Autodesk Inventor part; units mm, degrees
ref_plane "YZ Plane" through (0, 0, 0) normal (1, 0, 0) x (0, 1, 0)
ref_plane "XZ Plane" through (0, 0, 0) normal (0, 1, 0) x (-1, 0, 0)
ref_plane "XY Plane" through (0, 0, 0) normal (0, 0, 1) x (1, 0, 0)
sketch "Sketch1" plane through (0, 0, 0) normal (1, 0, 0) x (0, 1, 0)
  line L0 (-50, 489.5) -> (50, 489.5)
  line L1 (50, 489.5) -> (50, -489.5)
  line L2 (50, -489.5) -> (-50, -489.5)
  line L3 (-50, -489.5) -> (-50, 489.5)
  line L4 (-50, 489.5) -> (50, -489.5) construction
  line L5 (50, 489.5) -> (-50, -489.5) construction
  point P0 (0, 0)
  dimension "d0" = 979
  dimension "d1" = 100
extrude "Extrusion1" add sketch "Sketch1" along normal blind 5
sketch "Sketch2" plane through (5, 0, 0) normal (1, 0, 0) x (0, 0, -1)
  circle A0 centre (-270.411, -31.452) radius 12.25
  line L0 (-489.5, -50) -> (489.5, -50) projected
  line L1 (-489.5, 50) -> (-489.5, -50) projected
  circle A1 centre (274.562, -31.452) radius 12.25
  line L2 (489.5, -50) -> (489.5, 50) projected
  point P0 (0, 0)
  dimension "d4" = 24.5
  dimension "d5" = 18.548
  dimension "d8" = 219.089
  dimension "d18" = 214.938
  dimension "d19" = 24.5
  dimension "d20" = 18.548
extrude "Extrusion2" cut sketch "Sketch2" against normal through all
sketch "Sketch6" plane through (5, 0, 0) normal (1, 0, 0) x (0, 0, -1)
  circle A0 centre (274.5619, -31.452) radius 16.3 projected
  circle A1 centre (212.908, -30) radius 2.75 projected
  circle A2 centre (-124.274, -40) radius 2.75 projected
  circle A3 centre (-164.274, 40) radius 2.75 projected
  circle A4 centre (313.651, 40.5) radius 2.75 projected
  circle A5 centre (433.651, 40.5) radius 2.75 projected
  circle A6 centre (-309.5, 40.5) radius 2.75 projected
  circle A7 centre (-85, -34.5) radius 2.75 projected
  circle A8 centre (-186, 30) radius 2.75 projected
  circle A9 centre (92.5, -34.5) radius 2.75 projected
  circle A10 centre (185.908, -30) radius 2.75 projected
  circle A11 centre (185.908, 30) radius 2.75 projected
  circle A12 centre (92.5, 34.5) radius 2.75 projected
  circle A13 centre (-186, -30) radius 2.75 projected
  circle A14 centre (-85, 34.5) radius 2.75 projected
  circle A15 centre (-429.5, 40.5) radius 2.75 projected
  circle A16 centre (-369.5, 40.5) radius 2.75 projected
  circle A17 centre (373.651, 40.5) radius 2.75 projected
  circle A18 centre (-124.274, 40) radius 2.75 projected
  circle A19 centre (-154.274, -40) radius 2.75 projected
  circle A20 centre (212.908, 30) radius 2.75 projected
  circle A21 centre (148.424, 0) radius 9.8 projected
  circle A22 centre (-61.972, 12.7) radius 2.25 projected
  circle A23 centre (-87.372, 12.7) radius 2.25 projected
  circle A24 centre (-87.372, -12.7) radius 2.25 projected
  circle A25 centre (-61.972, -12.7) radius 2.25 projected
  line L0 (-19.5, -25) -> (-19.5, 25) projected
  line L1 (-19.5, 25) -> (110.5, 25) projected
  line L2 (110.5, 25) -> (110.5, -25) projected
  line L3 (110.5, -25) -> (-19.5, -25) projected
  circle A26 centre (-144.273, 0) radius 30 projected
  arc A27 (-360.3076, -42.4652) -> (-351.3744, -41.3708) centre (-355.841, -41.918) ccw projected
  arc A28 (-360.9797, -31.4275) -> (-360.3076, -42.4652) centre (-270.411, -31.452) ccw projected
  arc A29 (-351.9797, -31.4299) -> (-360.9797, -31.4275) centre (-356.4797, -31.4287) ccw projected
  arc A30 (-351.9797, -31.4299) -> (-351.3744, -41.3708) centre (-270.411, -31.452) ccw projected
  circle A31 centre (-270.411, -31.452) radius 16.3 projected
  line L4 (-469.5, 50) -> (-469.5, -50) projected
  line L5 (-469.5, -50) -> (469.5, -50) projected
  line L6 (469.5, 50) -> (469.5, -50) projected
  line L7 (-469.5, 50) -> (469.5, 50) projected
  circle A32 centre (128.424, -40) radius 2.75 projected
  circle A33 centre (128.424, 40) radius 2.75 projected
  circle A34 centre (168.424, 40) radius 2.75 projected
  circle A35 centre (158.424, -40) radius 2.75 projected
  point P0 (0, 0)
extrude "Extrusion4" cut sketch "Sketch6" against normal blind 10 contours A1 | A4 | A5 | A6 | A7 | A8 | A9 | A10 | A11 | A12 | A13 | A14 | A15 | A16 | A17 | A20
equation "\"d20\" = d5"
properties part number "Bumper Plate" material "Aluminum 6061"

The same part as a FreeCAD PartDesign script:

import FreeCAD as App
import Part
import Sketcher
from FreeCAD import Vector


def add_polygon(sketch, points):
    """Adds a closed chain of lines whose ends are joined by coincident constraints."""
    first, n = sketch.GeometryCount, len(points)
    for a, b in zip(points, points[1:] + points[:1]):
        sketch.addGeometry(Part.LineSegment(App.Vector(*a, 0), App.Vector(*b, 0)), False)
    for i in range(n):
        sketch.addConstraint(Sketcher.Constraint("Coincident", first + i, 2, first + (i + 1) % n, 1))

doc = App.newDocument("Part")
body = doc.addObject("PartDesign::Body", "Body")

sketch1 = body.newObject("Sketcher::SketchObject", "Sketch")
sketch1.AttachmentSupport = (doc.getObject("YZ_Plane"), [""])
sketch1.MapMode = "FlatFace"
add_polygon(sketch1, [(50, 490), (-50, 490), (-50, -490), (50, -490)])
sketch1.addConstraint(Sketcher.Constraint("Horizontal", 0))
sketch1.addConstraint(Sketcher.Constraint("Vertical", 1))
sketch1.addConstraint(Sketcher.Constraint("Horizontal", 2))
sketch1.addConstraint(Sketcher.Constraint("Vertical", 3))
sketch1.addConstraint(Sketcher.Constraint("Symmetric", 0, 2, 2, 2, -1, 1))
sketch1.addConstraint(Sketcher.Constraint("DistanceX", 0, 2, 0, 1, 100.0))
sketch1.addConstraint(Sketcher.Constraint("DistanceY", 1, 2, 1, 1, 979.0))
pad1 = body.newObject("PartDesign::Pad", "Pad")
pad1.Profile = sketch1
pad1.Length = 5

sketch2 = body.newObject("Sketcher::SketchObject", "Sketch001")
sketch2.AttachmentSupport = (doc.getObject("YZ_Plane"), [""])
sketch2.MapMode = "FlatFace"
sketch2.AttachmentOffset = App.Placement(Vector(0, 0, 5), App.Rotation())
sketch2.addGeometry(Part.Circle(Vector(-31, 270, 0), Vector(0, 0, 1), 12), False)
sketch2.addGeometry(Part.Circle(Vector(-31, -275, 0), Vector(0, 0, 1), 12), False)
sketch2.addConstraint(Sketcher.Constraint("Equal", 0, 1))
sketch2.addConstraint(Sketcher.Constraint("Vertical", 0, 3, 1, 3))
sketch2.addConstraint(Sketcher.Constraint("Diameter", 0, 24.5))
sketch2.addConstraint(Sketcher.Constraint("DistanceX", 0, 3, -1, 1, 31.452))
sketch2.addConstraint(Sketcher.Constraint("DistanceY", -1, 1, 0, 3, 270.411))
sketch2.addConstraint(Sketcher.Constraint("DistanceY", 1, 3, -1, 1, 274.562))
pocket1 = body.newObject("PartDesign::Pocket", "Pocket")
pocket1.Profile = sketch2
pocket1.Type = "ThroughAll"

sketch3 = body.newObject("Sketcher::SketchObject", "Sketch002")
sketch3.AttachmentSupport = (doc.getObject("YZ_Plane"), [""])
sketch3.MapMode = "FlatFace"
sketch3.AttachmentOffset = App.Placement(Vector(0, 0, 5), App.Rotation())
sketch3.addGeometry(Part.Circle(Vector(-30, -212.9, 0), Vector(0, 0, 1), 2.8), False)
sketch3.addGeometry(Part.Circle(Vector(40.5, -313.7, 0), Vector(0, 0, 1), 2.8), False)
sketch3.addGeometry(Part.Circle(Vector(40.5, -433.7, 0), Vector(0, 0, 1), 2.8), False)
sketch3.addGeometry(Part.Circle(Vector(40.5, 309.5, 0), Vector(0, 0, 1), 2.8), False)
sketch3.addGeometry(Part.Circle(Vector(-34.5, 85, 0), Vector(0, 0, 1), 2.8), False)
sketch3.addGeometry(Part.Circle(Vector(30, 186, 0), Vector(0, 0, 1), 2.8), False)
sketch3.addGeometry(Part.Circle(Vector(-34.5, -92.5, 0), Vector(0, 0, 1), 2.8), False)
sketch3.addGeometry(Part.Circle(Vector(-30, -185.9, 0), Vector(0, 0, 1), 2.8), False)
sketch3.addGeometry(Part.Circle(Vector(30, -185.9, 0), Vector(0, 0, 1), 2.8), False)
sketch3.addGeometry(Part.Circle(Vector(34.5, -92.5, 0), Vector(0, 0, 1), 2.8), False)
sketch3.addGeometry(Part.Circle(Vector(-30, 186, 0), Vector(0, 0, 1), 2.8), False)
sketch3.addGeometry(Part.Circle(Vector(34.5, 85, 0), Vector(0, 0, 1), 2.8), False)
sketch3.addGeometry(Part.Circle(Vector(40.5, 429.5, 0), Vector(0, 0, 1), 2.8), False)
sketch3.addGeometry(Part.Circle(Vector(40.5, 369.5, 0), Vector(0, 0, 1), 2.8), False)
sketch3.addGeometry(Part.Circle(Vector(40.5, -373.7, 0), Vector(0, 0, 1), 2.8), False)
sketch3.addGeometry(Part.Circle(Vector(30, -212.9, 0), Vector(0, 0, 1), 2.8), False)
sketch3.addConstraint(Sketcher.Constraint("Equal", 0, 1))
sketch3.addConstraint(Sketcher.Constraint("Equal", 1, 2))
sketch3.addConstraint(Sketcher.Constraint("Equal", 2, 3))
sketch3.addConstraint(Sketcher.Constraint("Equal", 3, 4))
sketch3.addConstraint(Sketcher.Constraint("Equal", 4, 5))
sketch3.addConstraint(Sketcher.Constraint("Equal", 5, 6))
sketch3.addConstraint(Sketcher.Constraint("Equal", 6, 7))
sketch3.addConstraint(Sketcher.Constraint("Equal", 7, 8))
sketch3.addConstraint(Sketcher.Constraint("Equal", 8, 9))
sketch3.addConstraint(Sketcher.Constraint("Equal", 9, 10))
sketch3.addConstraint(Sketcher.Constraint("Equal", 10, 11))
sketch3.addConstraint(Sketcher.Constraint("Equal", 11, 12))
sketch3.addConstraint(Sketcher.Constraint("Equal", 12, 13))
sketch3.addConstraint(Sketcher.Constraint("Equal", 13, 14))
sketch3.addConstraint(Sketcher.Constraint("Equal", 14, 15))
sketch3.addConstraint(Sketcher.Constraint("Symmetric", 7, 3, 8, 3, -2))
sketch3.addConstraint(Sketcher.Constraint("Symmetric", 6, 3, 9, 3, -2))
sketch3.addConstraint(Sketcher.Constraint("Symmetric", 5, 3, 10, 3, -2))
sketch3.addConstraint(Sketcher.Constraint("Symmetric", 4, 3, 11, 3, -2))
sketch3.addConstraint(Sketcher.Constraint("Symmetric", 0, 3, 15, 3, -2))
sketch3.addConstraint(Sketcher.Constraint("Vertical", 1, 3, 2, 3))
sketch3.addConstraint(Sketcher.Constraint("Vertical", 2, 3, 3, 3))
sketch3.addConstraint(Sketcher.Constraint("Vertical", 4, 3, 6, 3))
sketch3.addConstraint(Sketcher.Constraint("Vertical", 0, 3, 7, 3))
sketch3.addConstraint(Sketcher.Constraint("Vertical", 5, 3, 8, 3))
sketch3.addConstraint(Sketcher.Constraint("Vertical", 3, 3, 12, 3))
sketch3.addConstraint(Sketcher.Constraint("Vertical", 12, 3, 13, 3))
sketch3.addConstraint(Sketcher.Constraint("Vertical", 13, 3, 14, 3))
sketch3.addConstraint(Sketcher.Constraint("Diameter", 0, 5.5))
sketch3.addConstraint(Sketcher.Constraint("DistanceX", 0, 3, -1, 1, 30.0))
sketch3.addConstraint(Sketcher.Constraint("DistanceY", -1, 1, 4, 3, 85.0))
sketch3.addConstraint(Sketcher.Constraint("DistanceY", -1, 1, 5, 3, 186.0))
sketch3.addConstraint(Sketcher.Constraint("DistanceY", 2, 3, 1, 3, 120.0))
sketch3.addConstraint(Sketcher.Constraint("DistanceX", 4, 3, 3, 3, 75.0))
sketch3.addConstraint(Sketcher.Constraint("DistanceY", 0, 3, 7, 3, 27.0))
sketch3.addConstraint(Sketcher.Constraint("DistanceX", 6, 3, 9, 3, 69.0))
sketch3.addConstraint(Sketcher.Constraint("DistanceY", 3, 3, 12, 3, 120.0))
sketch3.addConstraint(Sketcher.Constraint("DistanceY", 3, 3, 13, 3, 60.0))
sketch3.addConstraint(Sketcher.Constraint("DistanceY", 14, 3, 1, 3, 60.0))
sketch3.addConstraint(Sketcher.Constraint("DistanceY", -1, 1, 3, 3, 309.5))
sketch3.addConstraint(Sketcher.Constraint("DistanceY", 6, 3, -1, 1, 92.5))
sketch3.addConstraint(Sketcher.Constraint("DistanceY", 0, 3, -1, 1, 212.908))
sketch3.addConstraint(Sketcher.Constraint("DistanceY", 1, 3, -1, 1, 313.651))
pocket2 = body.newObject("PartDesign::Pocket", "Pocket001")
pocket2.Profile = sketch3
pocket2.Length = 10

doc.recompute()
